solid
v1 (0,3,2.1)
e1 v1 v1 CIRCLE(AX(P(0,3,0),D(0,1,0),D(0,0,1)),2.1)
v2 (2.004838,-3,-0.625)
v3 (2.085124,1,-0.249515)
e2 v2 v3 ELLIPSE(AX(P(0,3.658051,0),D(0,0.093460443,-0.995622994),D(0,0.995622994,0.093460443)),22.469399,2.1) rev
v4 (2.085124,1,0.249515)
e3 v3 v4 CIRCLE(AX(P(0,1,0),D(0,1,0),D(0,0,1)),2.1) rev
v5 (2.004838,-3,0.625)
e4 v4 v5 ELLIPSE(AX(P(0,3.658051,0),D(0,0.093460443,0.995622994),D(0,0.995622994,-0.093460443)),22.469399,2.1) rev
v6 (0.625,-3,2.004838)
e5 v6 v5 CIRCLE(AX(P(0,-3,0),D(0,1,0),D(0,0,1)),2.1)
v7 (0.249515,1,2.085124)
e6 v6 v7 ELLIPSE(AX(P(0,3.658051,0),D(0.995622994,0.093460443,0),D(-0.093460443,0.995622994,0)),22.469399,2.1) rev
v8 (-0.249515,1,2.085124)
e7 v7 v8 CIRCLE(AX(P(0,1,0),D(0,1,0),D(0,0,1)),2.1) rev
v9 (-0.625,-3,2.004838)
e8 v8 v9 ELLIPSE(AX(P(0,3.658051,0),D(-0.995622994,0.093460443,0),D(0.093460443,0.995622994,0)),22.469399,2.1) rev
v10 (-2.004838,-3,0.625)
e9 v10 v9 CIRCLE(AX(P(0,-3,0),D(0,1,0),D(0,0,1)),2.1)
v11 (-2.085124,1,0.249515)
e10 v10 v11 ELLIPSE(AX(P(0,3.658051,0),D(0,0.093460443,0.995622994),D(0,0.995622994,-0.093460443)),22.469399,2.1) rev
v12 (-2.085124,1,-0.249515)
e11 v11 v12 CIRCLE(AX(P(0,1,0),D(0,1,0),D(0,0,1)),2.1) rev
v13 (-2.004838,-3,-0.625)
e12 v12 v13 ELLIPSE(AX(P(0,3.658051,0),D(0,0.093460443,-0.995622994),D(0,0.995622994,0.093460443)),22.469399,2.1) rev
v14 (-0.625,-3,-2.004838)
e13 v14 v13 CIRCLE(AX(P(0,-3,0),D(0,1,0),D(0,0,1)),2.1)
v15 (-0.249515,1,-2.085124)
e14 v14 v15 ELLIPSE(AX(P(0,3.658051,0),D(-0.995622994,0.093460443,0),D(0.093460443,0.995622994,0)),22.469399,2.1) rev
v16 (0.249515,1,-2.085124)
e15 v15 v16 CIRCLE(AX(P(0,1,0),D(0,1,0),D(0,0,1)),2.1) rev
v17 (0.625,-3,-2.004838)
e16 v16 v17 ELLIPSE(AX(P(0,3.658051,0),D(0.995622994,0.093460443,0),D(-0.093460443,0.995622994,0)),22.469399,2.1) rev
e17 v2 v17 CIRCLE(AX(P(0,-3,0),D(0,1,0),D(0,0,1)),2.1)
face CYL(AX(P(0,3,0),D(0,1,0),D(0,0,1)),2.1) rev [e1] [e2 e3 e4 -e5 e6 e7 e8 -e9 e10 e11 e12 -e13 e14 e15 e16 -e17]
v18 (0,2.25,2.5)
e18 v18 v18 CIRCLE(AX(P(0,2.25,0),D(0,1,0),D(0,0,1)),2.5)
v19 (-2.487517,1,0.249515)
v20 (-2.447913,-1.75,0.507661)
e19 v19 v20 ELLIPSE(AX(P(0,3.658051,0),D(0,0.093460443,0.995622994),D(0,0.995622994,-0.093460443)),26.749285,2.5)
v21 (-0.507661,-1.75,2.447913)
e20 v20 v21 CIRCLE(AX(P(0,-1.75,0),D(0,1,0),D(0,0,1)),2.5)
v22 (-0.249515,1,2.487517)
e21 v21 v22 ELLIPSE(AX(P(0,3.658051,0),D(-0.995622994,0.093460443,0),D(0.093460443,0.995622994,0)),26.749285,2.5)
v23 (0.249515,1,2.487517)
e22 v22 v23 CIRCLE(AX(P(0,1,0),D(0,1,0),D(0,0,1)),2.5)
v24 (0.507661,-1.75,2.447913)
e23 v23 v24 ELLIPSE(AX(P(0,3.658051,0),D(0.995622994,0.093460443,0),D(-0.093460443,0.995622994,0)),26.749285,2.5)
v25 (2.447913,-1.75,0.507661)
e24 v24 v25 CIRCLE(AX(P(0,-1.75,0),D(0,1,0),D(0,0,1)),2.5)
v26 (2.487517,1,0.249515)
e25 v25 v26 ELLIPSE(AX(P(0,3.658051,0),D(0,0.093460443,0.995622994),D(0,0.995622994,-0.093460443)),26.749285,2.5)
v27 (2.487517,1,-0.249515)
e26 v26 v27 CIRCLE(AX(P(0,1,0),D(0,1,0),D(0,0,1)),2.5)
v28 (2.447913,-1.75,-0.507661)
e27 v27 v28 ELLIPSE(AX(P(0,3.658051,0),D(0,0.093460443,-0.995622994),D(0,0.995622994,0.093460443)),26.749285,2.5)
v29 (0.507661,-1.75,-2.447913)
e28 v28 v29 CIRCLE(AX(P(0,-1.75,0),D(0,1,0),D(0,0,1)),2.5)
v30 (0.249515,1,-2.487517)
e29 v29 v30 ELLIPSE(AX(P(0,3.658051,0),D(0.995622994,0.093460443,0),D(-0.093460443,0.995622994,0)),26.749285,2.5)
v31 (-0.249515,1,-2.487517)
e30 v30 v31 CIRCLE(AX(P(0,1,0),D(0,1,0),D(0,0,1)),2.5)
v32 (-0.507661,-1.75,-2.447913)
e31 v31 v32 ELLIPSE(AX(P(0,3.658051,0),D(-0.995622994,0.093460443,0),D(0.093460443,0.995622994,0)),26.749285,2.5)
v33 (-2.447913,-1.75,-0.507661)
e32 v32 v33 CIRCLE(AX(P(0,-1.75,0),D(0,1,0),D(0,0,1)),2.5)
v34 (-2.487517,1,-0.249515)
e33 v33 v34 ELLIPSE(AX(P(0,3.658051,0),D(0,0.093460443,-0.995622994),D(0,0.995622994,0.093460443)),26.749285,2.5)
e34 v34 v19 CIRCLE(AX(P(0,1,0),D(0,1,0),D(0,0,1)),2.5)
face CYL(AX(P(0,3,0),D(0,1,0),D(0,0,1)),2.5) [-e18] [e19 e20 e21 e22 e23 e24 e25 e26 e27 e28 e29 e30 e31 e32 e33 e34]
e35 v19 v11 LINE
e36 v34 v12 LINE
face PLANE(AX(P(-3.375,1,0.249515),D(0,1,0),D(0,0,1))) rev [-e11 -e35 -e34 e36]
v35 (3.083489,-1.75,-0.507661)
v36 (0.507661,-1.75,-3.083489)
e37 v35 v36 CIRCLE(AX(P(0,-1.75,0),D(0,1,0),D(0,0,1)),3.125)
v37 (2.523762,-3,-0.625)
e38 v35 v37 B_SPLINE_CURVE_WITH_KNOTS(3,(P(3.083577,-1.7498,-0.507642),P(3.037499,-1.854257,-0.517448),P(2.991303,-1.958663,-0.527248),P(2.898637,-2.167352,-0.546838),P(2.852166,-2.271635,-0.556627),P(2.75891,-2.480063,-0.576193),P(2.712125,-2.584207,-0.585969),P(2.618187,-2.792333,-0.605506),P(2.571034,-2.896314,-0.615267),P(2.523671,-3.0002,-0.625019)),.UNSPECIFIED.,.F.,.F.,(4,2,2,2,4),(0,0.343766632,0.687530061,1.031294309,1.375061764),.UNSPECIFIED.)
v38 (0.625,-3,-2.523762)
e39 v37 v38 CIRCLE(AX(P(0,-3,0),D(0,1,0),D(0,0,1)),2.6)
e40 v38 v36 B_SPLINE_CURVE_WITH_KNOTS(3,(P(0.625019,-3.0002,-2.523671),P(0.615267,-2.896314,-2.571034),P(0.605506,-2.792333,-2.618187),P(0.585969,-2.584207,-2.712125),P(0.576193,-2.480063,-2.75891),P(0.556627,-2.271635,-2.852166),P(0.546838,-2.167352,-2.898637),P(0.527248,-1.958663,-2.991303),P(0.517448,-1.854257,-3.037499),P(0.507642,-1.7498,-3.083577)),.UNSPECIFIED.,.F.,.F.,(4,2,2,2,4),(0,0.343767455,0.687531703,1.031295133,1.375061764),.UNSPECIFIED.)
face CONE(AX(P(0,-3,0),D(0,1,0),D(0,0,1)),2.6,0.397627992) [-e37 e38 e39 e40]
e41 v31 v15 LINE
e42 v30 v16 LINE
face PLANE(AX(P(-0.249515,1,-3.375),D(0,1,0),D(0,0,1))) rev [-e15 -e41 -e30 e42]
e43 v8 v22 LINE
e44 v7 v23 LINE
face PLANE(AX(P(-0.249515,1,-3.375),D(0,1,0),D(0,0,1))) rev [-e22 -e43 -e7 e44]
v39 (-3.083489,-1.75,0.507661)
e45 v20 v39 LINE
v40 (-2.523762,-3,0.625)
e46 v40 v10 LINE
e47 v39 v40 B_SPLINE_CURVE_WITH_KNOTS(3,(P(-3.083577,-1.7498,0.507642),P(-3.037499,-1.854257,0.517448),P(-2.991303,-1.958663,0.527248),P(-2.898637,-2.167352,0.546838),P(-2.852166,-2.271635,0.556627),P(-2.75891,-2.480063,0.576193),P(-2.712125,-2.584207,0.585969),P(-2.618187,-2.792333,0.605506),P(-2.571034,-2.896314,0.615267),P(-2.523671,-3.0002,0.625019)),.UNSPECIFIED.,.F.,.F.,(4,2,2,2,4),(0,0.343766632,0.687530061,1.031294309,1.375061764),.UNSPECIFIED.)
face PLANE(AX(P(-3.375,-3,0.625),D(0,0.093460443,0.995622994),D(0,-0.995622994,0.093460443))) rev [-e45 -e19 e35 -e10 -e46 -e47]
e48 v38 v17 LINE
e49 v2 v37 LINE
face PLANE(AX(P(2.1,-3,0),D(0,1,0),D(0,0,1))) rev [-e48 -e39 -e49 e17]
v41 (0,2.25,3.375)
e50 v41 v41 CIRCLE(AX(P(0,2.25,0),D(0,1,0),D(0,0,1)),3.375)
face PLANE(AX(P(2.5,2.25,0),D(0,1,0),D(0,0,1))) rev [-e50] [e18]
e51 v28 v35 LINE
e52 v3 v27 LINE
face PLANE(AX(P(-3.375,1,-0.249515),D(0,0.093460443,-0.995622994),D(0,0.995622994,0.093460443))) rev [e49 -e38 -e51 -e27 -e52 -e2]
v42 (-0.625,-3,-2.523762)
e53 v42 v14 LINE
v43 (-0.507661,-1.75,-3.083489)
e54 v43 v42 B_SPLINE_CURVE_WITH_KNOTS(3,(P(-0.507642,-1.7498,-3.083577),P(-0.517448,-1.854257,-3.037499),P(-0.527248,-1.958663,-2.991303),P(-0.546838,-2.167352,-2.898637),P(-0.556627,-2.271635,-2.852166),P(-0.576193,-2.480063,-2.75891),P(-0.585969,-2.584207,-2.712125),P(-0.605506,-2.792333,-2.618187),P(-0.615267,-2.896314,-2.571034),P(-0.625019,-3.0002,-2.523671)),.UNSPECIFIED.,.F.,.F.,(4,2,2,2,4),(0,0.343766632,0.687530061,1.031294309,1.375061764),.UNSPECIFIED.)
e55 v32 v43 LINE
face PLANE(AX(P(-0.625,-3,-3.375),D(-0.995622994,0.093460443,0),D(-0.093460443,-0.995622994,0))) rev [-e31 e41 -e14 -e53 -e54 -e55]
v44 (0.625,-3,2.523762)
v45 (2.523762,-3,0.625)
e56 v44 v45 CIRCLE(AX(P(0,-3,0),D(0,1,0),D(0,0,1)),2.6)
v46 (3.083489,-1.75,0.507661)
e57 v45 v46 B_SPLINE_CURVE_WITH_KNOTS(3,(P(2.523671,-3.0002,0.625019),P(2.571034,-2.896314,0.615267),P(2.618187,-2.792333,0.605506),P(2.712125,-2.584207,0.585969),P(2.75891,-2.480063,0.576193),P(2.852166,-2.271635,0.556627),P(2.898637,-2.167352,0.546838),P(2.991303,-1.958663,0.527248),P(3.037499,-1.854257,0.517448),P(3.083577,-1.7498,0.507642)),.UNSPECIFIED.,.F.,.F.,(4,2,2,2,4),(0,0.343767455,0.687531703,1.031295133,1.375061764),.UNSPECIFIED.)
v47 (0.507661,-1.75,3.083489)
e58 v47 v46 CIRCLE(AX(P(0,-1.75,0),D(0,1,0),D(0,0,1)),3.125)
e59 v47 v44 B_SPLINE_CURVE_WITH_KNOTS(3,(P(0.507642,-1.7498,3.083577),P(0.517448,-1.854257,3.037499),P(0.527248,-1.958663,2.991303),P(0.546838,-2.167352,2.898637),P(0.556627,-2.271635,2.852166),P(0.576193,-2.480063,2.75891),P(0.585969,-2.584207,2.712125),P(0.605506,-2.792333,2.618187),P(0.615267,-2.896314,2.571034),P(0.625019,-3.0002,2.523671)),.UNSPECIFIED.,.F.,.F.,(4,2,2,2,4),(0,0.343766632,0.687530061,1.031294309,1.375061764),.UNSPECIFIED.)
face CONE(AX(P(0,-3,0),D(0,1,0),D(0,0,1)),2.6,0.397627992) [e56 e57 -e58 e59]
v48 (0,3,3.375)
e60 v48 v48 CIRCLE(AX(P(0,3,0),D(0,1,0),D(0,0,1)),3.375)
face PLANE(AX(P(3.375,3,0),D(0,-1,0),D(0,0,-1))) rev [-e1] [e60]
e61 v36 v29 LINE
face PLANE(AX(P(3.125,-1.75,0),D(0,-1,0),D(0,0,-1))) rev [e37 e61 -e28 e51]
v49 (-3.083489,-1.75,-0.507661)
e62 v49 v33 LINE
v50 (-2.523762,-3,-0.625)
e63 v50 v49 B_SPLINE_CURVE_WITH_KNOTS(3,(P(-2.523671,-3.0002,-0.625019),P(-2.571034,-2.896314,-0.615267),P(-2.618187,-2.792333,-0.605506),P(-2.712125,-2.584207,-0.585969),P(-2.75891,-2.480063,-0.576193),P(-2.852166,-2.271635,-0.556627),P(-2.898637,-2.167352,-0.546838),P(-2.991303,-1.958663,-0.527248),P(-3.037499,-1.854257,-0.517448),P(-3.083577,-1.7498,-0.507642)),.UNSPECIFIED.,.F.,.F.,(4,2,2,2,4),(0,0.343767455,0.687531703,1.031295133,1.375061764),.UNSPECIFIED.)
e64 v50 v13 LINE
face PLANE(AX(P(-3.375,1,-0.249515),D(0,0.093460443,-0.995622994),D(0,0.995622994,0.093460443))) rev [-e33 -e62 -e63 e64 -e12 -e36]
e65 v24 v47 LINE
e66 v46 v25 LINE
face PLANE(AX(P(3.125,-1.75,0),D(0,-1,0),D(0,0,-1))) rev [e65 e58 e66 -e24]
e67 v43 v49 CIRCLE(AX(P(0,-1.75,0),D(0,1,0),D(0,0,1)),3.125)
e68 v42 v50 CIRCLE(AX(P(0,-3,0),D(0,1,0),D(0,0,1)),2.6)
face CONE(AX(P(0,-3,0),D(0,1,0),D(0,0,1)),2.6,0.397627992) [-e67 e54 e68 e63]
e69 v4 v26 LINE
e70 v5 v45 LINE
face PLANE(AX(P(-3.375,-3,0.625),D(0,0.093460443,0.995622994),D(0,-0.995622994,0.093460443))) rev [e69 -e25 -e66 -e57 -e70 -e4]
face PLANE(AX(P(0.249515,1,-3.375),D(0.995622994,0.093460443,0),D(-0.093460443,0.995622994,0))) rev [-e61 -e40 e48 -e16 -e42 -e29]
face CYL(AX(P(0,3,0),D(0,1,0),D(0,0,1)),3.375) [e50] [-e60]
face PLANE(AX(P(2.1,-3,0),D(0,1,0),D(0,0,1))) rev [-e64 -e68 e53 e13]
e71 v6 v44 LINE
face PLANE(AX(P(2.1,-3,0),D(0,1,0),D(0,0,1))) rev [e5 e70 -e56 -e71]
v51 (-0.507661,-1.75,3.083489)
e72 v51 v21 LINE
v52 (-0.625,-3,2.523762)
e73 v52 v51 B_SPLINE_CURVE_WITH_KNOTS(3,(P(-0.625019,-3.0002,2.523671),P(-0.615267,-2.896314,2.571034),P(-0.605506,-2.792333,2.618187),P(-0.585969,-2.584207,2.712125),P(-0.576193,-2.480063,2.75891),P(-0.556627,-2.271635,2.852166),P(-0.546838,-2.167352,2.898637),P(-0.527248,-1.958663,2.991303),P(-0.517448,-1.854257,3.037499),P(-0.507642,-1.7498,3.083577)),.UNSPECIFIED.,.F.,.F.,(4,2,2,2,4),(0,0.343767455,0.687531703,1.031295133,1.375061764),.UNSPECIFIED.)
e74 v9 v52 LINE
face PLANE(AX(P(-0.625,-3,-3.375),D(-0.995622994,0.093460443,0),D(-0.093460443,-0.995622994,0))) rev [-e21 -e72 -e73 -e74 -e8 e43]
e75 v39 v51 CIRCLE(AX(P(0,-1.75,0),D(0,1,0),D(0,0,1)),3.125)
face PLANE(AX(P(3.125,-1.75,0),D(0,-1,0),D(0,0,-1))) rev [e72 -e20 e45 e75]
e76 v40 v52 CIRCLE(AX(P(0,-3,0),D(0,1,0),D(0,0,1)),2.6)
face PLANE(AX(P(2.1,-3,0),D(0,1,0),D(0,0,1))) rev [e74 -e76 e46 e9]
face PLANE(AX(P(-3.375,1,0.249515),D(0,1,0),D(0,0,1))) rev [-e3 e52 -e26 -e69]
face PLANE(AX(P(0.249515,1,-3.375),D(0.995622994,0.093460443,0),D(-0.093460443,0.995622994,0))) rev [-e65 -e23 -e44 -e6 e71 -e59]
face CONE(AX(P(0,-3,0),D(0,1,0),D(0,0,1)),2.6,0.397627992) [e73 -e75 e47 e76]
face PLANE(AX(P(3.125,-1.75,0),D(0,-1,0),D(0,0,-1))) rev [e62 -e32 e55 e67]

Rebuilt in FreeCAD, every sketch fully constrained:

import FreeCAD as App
import Part
import Sketcher
from FreeCAD import Vector

doc = App.newDocument("Part")
params = doc.addObject("Spreadsheet::Sheet", "Params")
for row, (alias, value) in enumerate([
    ("sketch1_height", "6 mm"),
    ("sketch1_height2", "4 mm"),
    ("sketch1_width", "0.5 mm"),
    ("sketch1_height3", "0.75 mm"),
    ("revolution_angle", "360 deg"),
    ("sketch2_width", "1.25 mm"),
    ("pocket1_length", "8.75 mm"),
], start=1):
    params.set(f"A{row}", alias)
    params.set(f"B{row}", "=" + value)
    params.setAlias(f"B{row}", alias)

body = doc.addObject("PartDesign::Body", "Body")

# Sketch on XY plane
sketch1 = doc.addObject("Sketcher::SketchObject", "Sketch")
body.addObject(sketch1)
sketch1.AttachmentSupport = (doc.XY_Plane, [""])
sketch1.MapMode = "FlatFace"
sketch1.addGeometry([
    Part.LineSegment(Vector(2.1, 3, 0), Vector(2.1, -3, 0)),  # 0
    Part.LineSegment(Vector(2.1, -3, 0), Vector(2.6, -3, 0)),  # 1
    Part.LineSegment(Vector(2.6, -3, 0), Vector(3.1, -1.8, 0)),  # 2
    Part.LineSegment(Vector(3.1, -1.8, 0), Vector(2.5, -1.8, 0)),  # 3
    Part.LineSegment(Vector(2.5, -1.8, 0), Vector(2.5, 2.2, 0)),  # 4
    Part.LineSegment(Vector(2.5, 2.2, 0), Vector(3.4, 2.2, 0)),  # 5
    Part.LineSegment(Vector(3.4, 2.2, 0), Vector(3.4, 3, 0)),  # 6
    Part.LineSegment(Vector(3.4, 3, 0), Vector(2.1, 3, 0)),  # 7
], False)
sketch1.addConstraint([
    Sketcher.Constraint("Coincident", 0, 2, 1, 1),
    Sketcher.Constraint("Coincident", 1, 2, 2, 1),
    Sketcher.Constraint("Coincident", 2, 2, 3, 1),
    Sketcher.Constraint("Coincident", 3, 2, 4, 1),
    Sketcher.Constraint("Coincident", 4, 2, 5, 1),
    Sketcher.Constraint("Coincident", 5, 2, 6, 1),
    Sketcher.Constraint("Coincident", 6, 2, 7, 1),
    Sketcher.Constraint("Coincident", 7, 2, 0, 1),
    Sketcher.Constraint("Vertical", 0),
    Sketcher.Constraint("Horizontal", 1),
    Sketcher.Constraint("Horizontal", 3),
    Sketcher.Constraint("Vertical", 4),
    Sketcher.Constraint("Horizontal", 5),
    Sketcher.Constraint("Vertical", 6),
    Sketcher.Constraint("Horizontal", 7),
    Sketcher.Constraint("DistanceY", 0, 2, 0, 1, 6.0),
    Sketcher.Constraint("DistanceY", 4, 1, 4, 2, 4.0),
    Sketcher.Constraint("DistanceX", 1, 1, 1, 2, 0.5),
    Sketcher.Constraint("DistanceY", 0, 2, -1, 1, 3.0),
    Sketcher.Constraint("DistanceY", 6, 1, 6, 2, 0.75),
    Sketcher.Constraint("DistanceX", -1, 1, 0, 2, 2.1),
    Sketcher.Constraint("DistanceX", -1, 1, 3, 2, 2.5),
    Sketcher.Constraint("DistanceX", 3, 2, 3, 1, 0.625),
    Sketcher.Constraint("DistanceX", 5, 1, 5, 2, 0.875),
])
sketch1.setExpression("Constraints[15]", "Params.sketch1_height")
sketch1.setExpression("Constraints[16]", "Params.sketch1_height2")
sketch1.setExpression("Constraints[17]", "Params.sketch1_width")
sketch1.setExpression("Constraints[19]", "Params.sketch1_height3")
revolution = doc.addObject("PartDesign::Revolution", "Revolution")
body.addObject(revolution)
revolution.Profile = sketch1
revolution.ReferenceAxis = (sketch1, ["V_Axis"])
revolution.setExpression("Angle", "Params.revolution_angle")

# Sketch on XY plane
sketch2 = doc.addObject("Sketcher::SketchObject", "Sketch001")
body.addObject(sketch2)
sketch2.AttachmentSupport = (doc.XY_Plane, [""])
sketch2.MapMode = "FlatFace"
sketch2.addGeometry([
    Part.LineSegment(Vector(0.25, 1, 0), Vector(-0.25, 1, 0)),
    Part.LineSegment(Vector(-0.25, 1, 0), Vector(-0.62, -3, 0)),
    Part.LineSegment(Vector(-0.62, -3, 0), Vector(0.62, -3, 0)),
    Part.LineSegment(Vector(0.62, -3, 0), Vector(0.25, 1, 0)),
], False)
sketch2.addConstraint([
    Sketcher.Constraint("Coincident", 0, 2, 1, 1),
    Sketcher.Constraint("Coincident", 1, 2, 2, 1),
    Sketcher.Constraint("Coincident", 2, 2, 3, 1),
    Sketcher.Constraint("Coincident", 3, 2, 0, 1),
    Sketcher.Constraint("Horizontal", 0),
    Sketcher.Constraint("Horizontal", 2),
    Sketcher.Constraint("Equal", 1, 3),
    Sketcher.Constraint("DistanceY", -1, 1, 0, 2, 1.0),
    Sketcher.Constraint("DistanceY", 1, 2, -1, 1, 3.0),
    Sketcher.Constraint("DistanceX", 2, 1, 2, 2, 1.25),
    Sketcher.Constraint("DistanceX", 1, 2, -1, 1, 0.625),
    Sketcher.Constraint("DistanceX", 0, 2, 0, 1, 0.499029),
])
sketch2.setExpression("Constraints[9]", "Params.sketch2_width")
pocket1 = doc.addObject("PartDesign::Pocket", "Pocket")
body.addObject(pocket1)
pocket1.Profile = sketch2
pocket1.setExpression("Length", "Params.pocket1_length")
pocket1.Midplane = True
doc.recompute()

polarpattern = doc.addObject("PartDesign::PolarPattern", "PolarPattern")
body.addObject(polarpattern)
polarpattern.Originals = [pocket1]
polarpattern.Axis = (doc.Y_Axis, [""])
polarpattern.Angle = 360
polarpattern.Occurrences = 4
body.Tip = polarpattern

doc.recompute()
